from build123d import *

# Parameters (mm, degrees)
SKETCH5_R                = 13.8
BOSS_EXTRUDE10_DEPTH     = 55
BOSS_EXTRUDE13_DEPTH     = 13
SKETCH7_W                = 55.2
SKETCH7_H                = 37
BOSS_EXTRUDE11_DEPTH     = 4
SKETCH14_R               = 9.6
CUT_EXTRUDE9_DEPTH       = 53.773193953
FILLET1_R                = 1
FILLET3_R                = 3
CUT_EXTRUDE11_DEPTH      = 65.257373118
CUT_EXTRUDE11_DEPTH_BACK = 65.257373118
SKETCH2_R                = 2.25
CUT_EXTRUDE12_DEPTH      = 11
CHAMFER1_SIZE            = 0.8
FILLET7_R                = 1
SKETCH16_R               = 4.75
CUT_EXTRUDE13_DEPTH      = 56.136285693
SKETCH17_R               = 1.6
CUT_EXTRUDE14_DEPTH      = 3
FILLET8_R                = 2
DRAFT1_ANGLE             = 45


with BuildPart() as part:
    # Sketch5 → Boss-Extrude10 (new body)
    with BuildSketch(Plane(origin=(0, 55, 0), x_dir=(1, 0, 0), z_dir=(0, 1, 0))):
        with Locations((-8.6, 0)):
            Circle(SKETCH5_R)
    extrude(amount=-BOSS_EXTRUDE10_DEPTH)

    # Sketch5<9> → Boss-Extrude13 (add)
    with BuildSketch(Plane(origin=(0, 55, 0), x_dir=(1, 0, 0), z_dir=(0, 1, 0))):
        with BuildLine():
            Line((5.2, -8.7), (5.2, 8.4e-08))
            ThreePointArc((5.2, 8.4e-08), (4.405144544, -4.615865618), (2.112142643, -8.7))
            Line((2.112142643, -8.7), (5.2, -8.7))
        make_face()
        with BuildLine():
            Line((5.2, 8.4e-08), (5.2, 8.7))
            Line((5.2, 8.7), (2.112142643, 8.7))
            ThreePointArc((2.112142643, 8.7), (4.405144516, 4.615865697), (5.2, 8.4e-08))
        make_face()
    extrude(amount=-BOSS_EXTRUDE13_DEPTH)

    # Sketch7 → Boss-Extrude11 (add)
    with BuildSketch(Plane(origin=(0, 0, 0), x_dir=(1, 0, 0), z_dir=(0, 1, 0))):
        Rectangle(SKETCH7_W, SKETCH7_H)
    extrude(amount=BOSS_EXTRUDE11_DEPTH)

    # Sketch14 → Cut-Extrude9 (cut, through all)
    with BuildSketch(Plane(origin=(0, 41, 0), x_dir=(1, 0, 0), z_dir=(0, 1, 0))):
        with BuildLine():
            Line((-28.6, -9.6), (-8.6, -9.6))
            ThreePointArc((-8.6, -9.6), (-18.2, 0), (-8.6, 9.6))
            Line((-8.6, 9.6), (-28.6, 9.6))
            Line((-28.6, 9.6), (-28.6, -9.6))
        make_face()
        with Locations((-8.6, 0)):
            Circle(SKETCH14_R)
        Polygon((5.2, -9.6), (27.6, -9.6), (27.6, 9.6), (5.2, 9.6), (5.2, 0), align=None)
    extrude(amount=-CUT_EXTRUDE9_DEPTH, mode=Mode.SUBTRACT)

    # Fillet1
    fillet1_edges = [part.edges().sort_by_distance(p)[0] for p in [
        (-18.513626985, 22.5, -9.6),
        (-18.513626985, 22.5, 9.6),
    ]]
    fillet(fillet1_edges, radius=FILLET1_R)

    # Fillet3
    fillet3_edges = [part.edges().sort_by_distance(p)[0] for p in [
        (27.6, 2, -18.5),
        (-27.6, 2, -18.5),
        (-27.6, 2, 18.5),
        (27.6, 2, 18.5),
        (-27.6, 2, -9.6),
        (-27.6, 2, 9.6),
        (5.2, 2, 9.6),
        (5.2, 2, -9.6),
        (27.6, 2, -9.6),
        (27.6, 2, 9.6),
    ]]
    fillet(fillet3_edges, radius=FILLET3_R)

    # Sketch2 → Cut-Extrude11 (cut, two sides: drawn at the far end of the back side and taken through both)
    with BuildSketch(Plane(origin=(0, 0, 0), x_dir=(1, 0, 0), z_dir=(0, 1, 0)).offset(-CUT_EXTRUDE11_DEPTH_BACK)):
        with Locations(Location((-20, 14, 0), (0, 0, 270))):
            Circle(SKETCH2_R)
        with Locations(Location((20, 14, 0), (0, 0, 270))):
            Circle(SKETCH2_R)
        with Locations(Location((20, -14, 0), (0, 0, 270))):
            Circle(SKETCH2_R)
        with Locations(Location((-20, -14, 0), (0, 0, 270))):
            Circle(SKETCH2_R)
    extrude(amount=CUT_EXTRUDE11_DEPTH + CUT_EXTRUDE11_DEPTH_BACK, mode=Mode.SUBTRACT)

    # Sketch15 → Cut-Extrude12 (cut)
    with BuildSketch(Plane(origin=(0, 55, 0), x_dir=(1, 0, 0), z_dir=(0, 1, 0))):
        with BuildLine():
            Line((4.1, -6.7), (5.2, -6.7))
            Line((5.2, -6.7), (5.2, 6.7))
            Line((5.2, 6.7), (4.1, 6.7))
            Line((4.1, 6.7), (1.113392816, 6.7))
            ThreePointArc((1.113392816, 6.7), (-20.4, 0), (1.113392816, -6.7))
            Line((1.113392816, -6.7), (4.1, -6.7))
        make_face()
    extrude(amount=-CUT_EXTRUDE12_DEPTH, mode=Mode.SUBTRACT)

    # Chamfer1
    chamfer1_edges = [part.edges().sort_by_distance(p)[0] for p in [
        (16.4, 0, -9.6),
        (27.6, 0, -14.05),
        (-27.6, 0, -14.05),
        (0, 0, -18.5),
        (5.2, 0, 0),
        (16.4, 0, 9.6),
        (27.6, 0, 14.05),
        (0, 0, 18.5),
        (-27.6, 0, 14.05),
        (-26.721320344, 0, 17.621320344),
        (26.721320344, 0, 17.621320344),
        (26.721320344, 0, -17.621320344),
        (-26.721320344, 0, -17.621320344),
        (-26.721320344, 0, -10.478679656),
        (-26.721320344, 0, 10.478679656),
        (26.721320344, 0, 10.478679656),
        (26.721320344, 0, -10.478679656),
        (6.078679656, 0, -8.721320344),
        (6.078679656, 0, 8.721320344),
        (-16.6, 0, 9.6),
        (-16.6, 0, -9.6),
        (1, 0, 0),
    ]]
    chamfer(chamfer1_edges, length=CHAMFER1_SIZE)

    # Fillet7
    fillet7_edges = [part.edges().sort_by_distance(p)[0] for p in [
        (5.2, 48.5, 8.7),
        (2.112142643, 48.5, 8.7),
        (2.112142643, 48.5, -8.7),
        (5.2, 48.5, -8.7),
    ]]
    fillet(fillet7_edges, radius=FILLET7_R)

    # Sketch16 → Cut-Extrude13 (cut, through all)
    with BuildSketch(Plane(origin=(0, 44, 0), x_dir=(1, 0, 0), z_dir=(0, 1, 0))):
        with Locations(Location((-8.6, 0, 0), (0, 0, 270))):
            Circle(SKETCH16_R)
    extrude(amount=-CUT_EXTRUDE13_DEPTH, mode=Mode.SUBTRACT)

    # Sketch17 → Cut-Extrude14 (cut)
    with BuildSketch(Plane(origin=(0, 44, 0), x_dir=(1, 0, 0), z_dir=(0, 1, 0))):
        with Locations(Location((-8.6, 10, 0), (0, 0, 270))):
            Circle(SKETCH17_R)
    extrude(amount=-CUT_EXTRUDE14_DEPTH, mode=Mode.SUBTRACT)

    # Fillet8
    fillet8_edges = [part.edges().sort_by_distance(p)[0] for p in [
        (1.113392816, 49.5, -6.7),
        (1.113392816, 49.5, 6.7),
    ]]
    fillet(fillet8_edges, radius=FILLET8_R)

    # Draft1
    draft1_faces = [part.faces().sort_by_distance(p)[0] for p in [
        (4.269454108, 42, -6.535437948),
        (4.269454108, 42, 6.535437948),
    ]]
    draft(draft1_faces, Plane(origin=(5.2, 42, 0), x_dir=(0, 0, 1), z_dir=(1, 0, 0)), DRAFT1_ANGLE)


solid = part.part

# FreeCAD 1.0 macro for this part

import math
import FreeCAD as App
import Part
import Sketcher

V = App.Vector
Q = App.Units.Quantity


def edges_at(feature, points):
    """Names of the edges that pass closest to the given points."""
    edges = feature.Shape.Edges
    near = lambda p: min(range(len(edges)), key=lambda i: edges[i].distToShape(Part.Vertex(*p))[0])
    return sorted({f"Edge{near(p) + 1}" for p in points})


def faces_at(feature, points):
    """Names of the faces that lie closest to the given points."""
    faces = feature.Shape.Faces
    near = lambda p: min(range(len(faces)), key=lambda i: faces[i].distToShape(Part.Vertex(*p))[0])
    return sorted({f"Face{near(p) + 1}" for p in points})

doc = App.newDocument("Part")
body = doc.addObject("PartDesign::Body", "Body")

# Sketch on XZ plane
sketch1 = body.newObject("Sketcher::SketchObject", "Sketch")
sketch1.AttachmentSupport = (doc.getObject("XZ_Plane"), [""])
sketch1.MapMode = "FlatFace"
sketch1.AttachmentOffset = App.Placement(V(0, 0, -55), App.Rotation())
sketch1.addGeometry(Part.Circle(V(-9, 0, 0), V(0, 0, 1), 14), False)
sketch1.addConstraint([
    Sketcher.Constraint("PointOnObject", 0, 3, -1),
    Sketcher.Constraint("Diameter", 0, Q("27.6 mm")),
    Sketcher.Constraint("DistanceX", 0, 3, -1, 1, Q("8.6 mm")),
])
pad1 = body.newObject("PartDesign::Pad", "Pad")
pad1.Profile = sketch1
pad1.Length = 55

# Sketch on XZ plane
sketch2 = body.newObject("Sketcher::SketchObject", "Sketch001")
sketch2.AttachmentSupport = (doc.getObject("XZ_Plane"), [""])
sketch2.MapMode = "FlatFace"
sketch2.AttachmentOffset = App.Placement(V(0, 0, -55), App.Rotation())
sketch2.addGeometry([
    Part.LineSegment(V(5.2, 8.7, 0), V(5.2, 0, 0)),  # 0
    Part.ArcOfCircle(Part.Circle(V(-8.6, 0, 0), V(0, 0, 1), 13.8), math.radians(0), math.radians(39)),  # 1
    Part.LineSegment(V(2.1, 8.7, 0), V(5.2, 8.7, 0)),  # 2
    Part.LineSegment(V(5.2, 0, 0), V(5.2, -8.7, 0)),  # 3
    Part.LineSegment(V(5.2, -8.7, 0), V(2.1, -8.7, 0)),  # 4
    Part.ArcOfCircle(Part.Circle(V(-8.6, 0, 0), V(0, 0, 1), 13.8), math.radians(-39), math.radians(0)),  # 5
], False)
sketch2.addConstraint([
    Sketcher.Constraint("Tangent", 0, 2, 1, 1),
    Sketcher.Constraint("Coincident", 1, 2, 2, 1),
    Sketcher.Constraint("Coincident", 2, 2, 0, 1),
    Sketcher.Constraint("Coincident", 3, 2, 4, 1),
    Sketcher.Constraint("Coincident", 4, 2, 5, 1),
    Sketcher.Constraint("Tangent", 5, 2, 3, 1),
    Sketcher.Constraint("Vertical", 0),
    Sketcher.Constraint("Horizontal", 2),
    Sketcher.Constraint("Vertical", 3),
    Sketcher.Constraint("Horizontal", 4),
    Sketcher.Constraint("Coincident", 5, 3, 1, 3),
    Sketcher.Constraint("Equal", 1, 5),
    Sketcher.Constraint("Symmetric", 1, 2, 4, 2, -1),
    Sketcher.Constraint("Radius", 1, Q("13.8 mm")),
    Sketcher.Constraint("DistanceY", 0, 2, 0, 1, Q("8.7 mm")),
    Sketcher.Constraint("DistanceX", 1, 3, -1, 1, Q("8.6 mm")),
])
pad2 = body.newObject("PartDesign::Pad", "Pad001")
pad2.Profile = sketch2
pad2.Length = 13

# Sketch on XZ plane
sketch3 = body.newObject("Sketcher::SketchObject", "Sketch002")
sketch3.AttachmentSupport = (doc.getObject("XZ_Plane"), [""])
sketch3.MapMode = "FlatFace"
sketch3.addGeometry([
    Part.LineSegment(V(-28, -18, 0), V(-28, 18, 0)),
    Part.LineSegment(V(-28, 18, 0), V(28, 18, 0)),
    Part.LineSegment(V(28, 18, 0), V(28, -18, 0)),
    Part.LineSegment(V(28, -18, 0), V(-28, -18, 0)),
], False)
sketch3.addConstraint([
    Sketcher.Constraint("Coincident", 0, 2, 1, 1),
    Sketcher.Constraint("Coincident", 1, 2, 2, 1),
    Sketcher.Constraint("Coincident", 2, 2, 3, 1),
    Sketcher.Constraint("Coincident", 3, 2, 0, 1),
    Sketcher.Constraint("Vertical", 0),
    Sketcher.Constraint("Horizontal", 1),
    Sketcher.Constraint("Vertical", 2),
    Sketcher.Constraint("Horizontal", 3),
    Sketcher.Constraint("Symmetric", 0, 2, 2, 2, -1, 1),
    Sketcher.Constraint("DistanceY", 0, 1, 0, 2, Q("37 mm")),
    Sketcher.Constraint("DistanceX", 1, 1, 1, 2, Q("55.2 mm")),
])
pad3 = body.newObject("PartDesign::Pad", "Pad002")
pad3.Profile = sketch3
pad3.Length = 4
pad3.Reversed = True

# Sketch on XZ plane
sketch4 = body.newObject("Sketcher::SketchObject", "Sketch003")
sketch4.AttachmentSupport = (doc.getObject("XZ_Plane"), [""])
sketch4.MapMode = "FlatFace"
sketch4.AttachmentOffset = App.Placement(V(0, 0, -41), App.Rotation())
sketch4.addGeometry([
    Part.LineSegment(V(-29, 10, 0), V(-9, 10, 0)),  # 0
    Part.ArcOfCircle(Part.Circle(V(-9, 0, 0), V(0, 0, 1), 10), math.radians(-90), math.radians(90)),  # 1
    Part.LineSegment(V(-9, -10, 0), V(-29, -10, 0)),  # 2
    Part.LineSegment(V(-29, -10, 0), V(-29, 10, 0)),  # 3
    Part.LineSegment(V(5, 10, 0), V(28, 10, 0)),  # 4
    Part.LineSegment(V(28, 10, 0), V(28, -10, 0)),  # 5
    Part.LineSegment(V(28, -10, 0), V(5, -10, 0)),  # 6
    Part.LineSegment(V(5, -10, 0), V(5, 10, 0)),  # 7
], False)
sketch4.addConstraint([
    Sketcher.Constraint("Tangent", 0, 2, 1, 2),
    Sketcher.Constraint("Tangent", 1, 1, 2, 1),
    Sketcher.Constraint("Coincident", 2, 2, 3, 1),
    Sketcher.Constraint("Coincident", 3, 2, 0, 1),
    Sketcher.Constraint("Coincident", 4, 2, 5, 1),
    Sketcher.Constraint("Coincident", 5, 2, 6, 1),
    Sketcher.Constraint("Coincident", 6, 2, 7, 1),
    Sketcher.Constraint("Coincident", 7, 2, 4, 1),
    Sketcher.Constraint("Horizontal", 0),
    Sketcher.Constraint("Horizontal", 2),
    Sketcher.Constraint("Vertical", 3),
    Sketcher.Constraint("Horizontal", 4),
    Sketcher.Constraint("Vertical", 5),
    Sketcher.Constraint("Horizontal", 6),
    Sketcher.Constraint("Vertical", 7),
    Sketcher.Constraint("PointOnObject", 1, 3, -1),
    Sketcher.Constraint("Horizontal", 3, 2, 4, 2),
    Sketcher.Constraint("Horizontal", 2, 2, 5, 2),
    Sketcher.Constraint("Radius", 1, Q("9.6 mm")),
    Sketcher.Constraint("DistanceX", 0, 1, 0, 2, Q("20 mm")),
    Sketcher.Constraint("DistanceX", 4, 1, 4, 2, Q("22.4 mm")),
    Sketcher.Constraint("DistanceX", 1, 3, -1, 1, Q("8.6 mm")),
    Sketcher.Constraint("DistanceX", -1, 1, 4, 2, Q("27.6 mm")),
])
pocket1 = body.newObject("PartDesign::Pocket", "Pocket")
pocket1.Profile = sketch4
pocket1.Type = "ThroughAll"
pocket1.Reversed = True
doc.recompute()

fillet = body.newObject("PartDesign::Fillet", "Fillet")
fillet.Base = (pocket1, edges_at(pocket1, [(-18.514, 22.5, -9.6), (-18.514, 22.5, 9.6)]))
fillet.Radius = 1
doc.recompute()

fillet2 = body.newObject("PartDesign::Fillet", "Fillet001")
fillet2.Base = (fillet, edges_at(fillet, [
    (27.6, 2, -18.5),
    (-27.6, 2, -18.5),
    (-27.6, 2, 18.5),
    (27.6, 2, 18.5),
    (-27.6, 2, -9.6),
    (-27.6, 2, 9.6),
    (5.2, 2, 9.6),
    (5.2, 2, -9.6),
    (27.6, 2, -9.6),
    (27.6, 2, 9.6),
]))
fillet2.Radius = 3

# Sketch on XZ plane
sketch5 = body.newObject("Sketcher::SketchObject", "Sketch004")
sketch5.AttachmentSupport = (doc.getObject("XZ_Plane"), [""])
sketch5.MapMode = "FlatFace"
sketch5.addGeometry([
    Part.Circle(V(-20, -14, 0), V(0, 0, 1), 2.2),
    Part.Circle(V(20, -14, 0), V(0, 0, 1), 2.2),
    Part.Circle(V(20, 14, 0), V(0, 0, 1), 2.2),
    Part.Circle(V(-20, 14, 0), V(0, 0, 1), 2.2),
], False)
sketch5.addConstraint([
    Sketcher.Constraint("Equal", 0, 1),
    Sketcher.Constraint("Equal", 1, 2),
    Sketcher.Constraint("Equal", 2, 3),
    Sketcher.Constraint("Symmetric", 0, 3, 2, 3, -1, 1),
    Sketcher.Constraint("Symmetric", 1, 3, 3, 3, -1, 1),
    Sketcher.Constraint("Symmetric", 0, 3, 1, 3, -2),
    Sketcher.Constraint("Diameter", 0, Q("4.5 mm")),
    Sketcher.Constraint("DistanceX", 0, 3, -1, 1, Q("20 mm")),
    Sketcher.Constraint("DistanceY", 0, 3, -1, 1, Q("14 mm")),
])
pocket2 = body.newObject("PartDesign::Pocket", "Pocket001")
pocket2.Profile = sketch5
pocket2.Type = "ThroughAll"
pocket2.Midplane = True

# Sketch on XZ plane
sketch6 = body.newObject("Sketcher::SketchObject", "Sketch005")
sketch6.AttachmentSupport = (doc.getObject("XZ_Plane"), [""])
sketch6.MapMode = "FlatFace"
sketch6.AttachmentOffset = App.Placement(V(0, 0, -55), App.Rotation())
sketch6.addGeometry([
    Part.LineSegment(V(5.2, 6.7, 0), V(5.2, -6.7, 0)),
    Part.LineSegment(V(5.2, -6.7, 0), V(1.1, -6.7, 0)),
    Part.ArcOfCircle(Part.Circle(V(-8.6, 0, 0), V(0, 0, 1), 11.8), math.radians(35), math.radians(325)),
    Part.LineSegment(V(1.1, 6.7, 0), V(5.2, 6.7, 0)),
], False)
sketch6.addConstraint([
    Sketcher.Constraint("Coincident", 0, 2, 1, 1),
    Sketcher.Constraint("Coincident", 1, 2, 2, 2),
    Sketcher.Constraint("Coincident", 2, 1, 3, 1),
    Sketcher.Constraint("Coincident", 3, 2, 0, 1),
    Sketcher.Constraint("Vertical", 0),
    Sketcher.Constraint("Horizontal", 1),
    Sketcher.Constraint("Horizontal", 3),
    Sketcher.Constraint("Symmetric", 1, 2, 2, 1, -1),
    Sketcher.Constraint("Radius", 2, Q("11.8 mm")),
    Sketcher.Constraint("DistanceY", 0, 2, 0, 1, Q("13.4 mm")),
    Sketcher.Constraint("DistanceX", 2, 3, -1, 1, Q("8.6 mm")),
    Sketcher.Constraint("DistanceX", -1, 1, 0, 2, Q("5.2 mm")),
])
pocket3 = body.newObject("PartDesign::Pocket", "Pocket002")
pocket3.Profile = sketch6
pocket3.Length = 11
pocket3.Reversed = True
doc.recompute()

chamfer = body.newObject("PartDesign::Chamfer", "Chamfer")
chamfer.Base = (pocket3, edges_at(pocket3, [
    (16.4, 0, -9.6),
    (27.6, 0, -14.05),
    (-27.6, 0, -14.05),
    (0, 0, -18.5),
    (5.2, 0, 0),
    (16.4, 0, 9.6),
    (27.6, 0, 14.05),
    (0, 0, 18.5),
    (-27.6, 0, 14.05),
    (-26.721, 0, 17.621),
    (26.721, 0, 17.621),
    (26.721, 0, -17.621),
    (-26.721, 0, -17.621),
    (-26.721, 0, -10.479),
    (-26.721, 0, 10.479),
    (26.721, 0, 10.479),
    (26.721, 0, -10.479),
    (6.079, 0, -8.721),
    (6.079, 0, 8.721),
    (-16.6, 0, 9.6),
    (-16.6, 0, -9.6),
    (1, 0, 0),
]))
chamfer.Size = 0.8
doc.recompute()

fillet3 = body.newObject("PartDesign::Fillet", "Fillet002")
fillet3.Base = (chamfer, edges_at(chamfer, [
    (5.2, 48.5, 8.7),
    (2.112, 48.5, 8.7),
    (2.112, 48.5, -8.7),
    (5.2, 48.5, -8.7),
]))
fillet3.Radius = 1

# Sketch on XZ plane
sketch7 = body.newObject("Sketcher::SketchObject", "Sketch006")
sketch7.AttachmentSupport = (doc.getObject("XZ_Plane"), [""])
sketch7.MapMode = "FlatFace"
sketch7.AttachmentOffset = App.Placement(V(0, 0, -44), App.Rotation())
sketch7.addGeometry(Part.Circle(V(-8.6, 0, 0), V(0, 0, 1), 4.8), False)
sketch7.addConstraint([
    Sketcher.Constraint("PointOnObject", 0, 3, -1),
    Sketcher.Constraint("Diameter", 0, Q("9.5 mm")),
    Sketcher.Constraint("DistanceX", 0, 3, -1, 1, Q("8.6 mm")),
])
pocket4 = body.newObject("PartDesign::Pocket", "Pocket003")
pocket4.Profile = sketch7
pocket4.Type = "ThroughAll"
pocket4.Reversed = True

# Sketch on XZ plane
sketch8 = body.newObject("Sketcher::SketchObject", "Sketch007")
sketch8.AttachmentSupport = (doc.getObject("XZ_Plane"), [""])
sketch8.MapMode = "FlatFace"
sketch8.AttachmentOffset = App.Placement(V(0, 0, -44), App.Rotation())
sketch8.addGeometry(Part.Circle(V(-8.6, -10, 0), V(0, 0, 1), 1.6), False)
sketch8.addConstraint([
    Sketcher.Constraint("Diameter", 0, Q("3.2 mm")),
    Sketcher.Constraint("DistanceY", 0, 3, -1, 1, Q("10 mm")),
    Sketcher.Constraint("DistanceX", 0, 3, -1, 1, Q("8.6 mm")),
])
pocket5 = body.newObject("PartDesign::Pocket", "Pocket004")
pocket5.Profile = sketch8
pocket5.Length = 3
pocket5.Reversed = True
doc.recompute()

fillet4 = body.newObject("PartDesign::Fillet", "Fillet003")
fillet4.Base = (pocket5, edges_at(pocket5, [(1.113, 49.5, -6.7), (1.113, 49.5, 6.7)]))
fillet4.Radius = 2
doc.recompute()

datumplane = body.newObject("PartDesign::Plane", "DatumPlane")
datumplane.AttachmentSupport = (doc.getObject("YZ_Plane"), [""])
datumplane.MapMode = "FlatFace"
datumplane.AttachmentOffset = App.Placement(V(0, 0, 5.2), App.Rotation())
draft = body.newObject("PartDesign::Draft", "Draft")
draft.Base = (fillet4, faces_at(fillet4, [(4.862, 42, -4.522), (3.511, 42, 8.14)]))
draft.NeutralPlane = (datumplane, [""])
draft.Angle = 45
draft.Reversed = False

doc.recompute()
